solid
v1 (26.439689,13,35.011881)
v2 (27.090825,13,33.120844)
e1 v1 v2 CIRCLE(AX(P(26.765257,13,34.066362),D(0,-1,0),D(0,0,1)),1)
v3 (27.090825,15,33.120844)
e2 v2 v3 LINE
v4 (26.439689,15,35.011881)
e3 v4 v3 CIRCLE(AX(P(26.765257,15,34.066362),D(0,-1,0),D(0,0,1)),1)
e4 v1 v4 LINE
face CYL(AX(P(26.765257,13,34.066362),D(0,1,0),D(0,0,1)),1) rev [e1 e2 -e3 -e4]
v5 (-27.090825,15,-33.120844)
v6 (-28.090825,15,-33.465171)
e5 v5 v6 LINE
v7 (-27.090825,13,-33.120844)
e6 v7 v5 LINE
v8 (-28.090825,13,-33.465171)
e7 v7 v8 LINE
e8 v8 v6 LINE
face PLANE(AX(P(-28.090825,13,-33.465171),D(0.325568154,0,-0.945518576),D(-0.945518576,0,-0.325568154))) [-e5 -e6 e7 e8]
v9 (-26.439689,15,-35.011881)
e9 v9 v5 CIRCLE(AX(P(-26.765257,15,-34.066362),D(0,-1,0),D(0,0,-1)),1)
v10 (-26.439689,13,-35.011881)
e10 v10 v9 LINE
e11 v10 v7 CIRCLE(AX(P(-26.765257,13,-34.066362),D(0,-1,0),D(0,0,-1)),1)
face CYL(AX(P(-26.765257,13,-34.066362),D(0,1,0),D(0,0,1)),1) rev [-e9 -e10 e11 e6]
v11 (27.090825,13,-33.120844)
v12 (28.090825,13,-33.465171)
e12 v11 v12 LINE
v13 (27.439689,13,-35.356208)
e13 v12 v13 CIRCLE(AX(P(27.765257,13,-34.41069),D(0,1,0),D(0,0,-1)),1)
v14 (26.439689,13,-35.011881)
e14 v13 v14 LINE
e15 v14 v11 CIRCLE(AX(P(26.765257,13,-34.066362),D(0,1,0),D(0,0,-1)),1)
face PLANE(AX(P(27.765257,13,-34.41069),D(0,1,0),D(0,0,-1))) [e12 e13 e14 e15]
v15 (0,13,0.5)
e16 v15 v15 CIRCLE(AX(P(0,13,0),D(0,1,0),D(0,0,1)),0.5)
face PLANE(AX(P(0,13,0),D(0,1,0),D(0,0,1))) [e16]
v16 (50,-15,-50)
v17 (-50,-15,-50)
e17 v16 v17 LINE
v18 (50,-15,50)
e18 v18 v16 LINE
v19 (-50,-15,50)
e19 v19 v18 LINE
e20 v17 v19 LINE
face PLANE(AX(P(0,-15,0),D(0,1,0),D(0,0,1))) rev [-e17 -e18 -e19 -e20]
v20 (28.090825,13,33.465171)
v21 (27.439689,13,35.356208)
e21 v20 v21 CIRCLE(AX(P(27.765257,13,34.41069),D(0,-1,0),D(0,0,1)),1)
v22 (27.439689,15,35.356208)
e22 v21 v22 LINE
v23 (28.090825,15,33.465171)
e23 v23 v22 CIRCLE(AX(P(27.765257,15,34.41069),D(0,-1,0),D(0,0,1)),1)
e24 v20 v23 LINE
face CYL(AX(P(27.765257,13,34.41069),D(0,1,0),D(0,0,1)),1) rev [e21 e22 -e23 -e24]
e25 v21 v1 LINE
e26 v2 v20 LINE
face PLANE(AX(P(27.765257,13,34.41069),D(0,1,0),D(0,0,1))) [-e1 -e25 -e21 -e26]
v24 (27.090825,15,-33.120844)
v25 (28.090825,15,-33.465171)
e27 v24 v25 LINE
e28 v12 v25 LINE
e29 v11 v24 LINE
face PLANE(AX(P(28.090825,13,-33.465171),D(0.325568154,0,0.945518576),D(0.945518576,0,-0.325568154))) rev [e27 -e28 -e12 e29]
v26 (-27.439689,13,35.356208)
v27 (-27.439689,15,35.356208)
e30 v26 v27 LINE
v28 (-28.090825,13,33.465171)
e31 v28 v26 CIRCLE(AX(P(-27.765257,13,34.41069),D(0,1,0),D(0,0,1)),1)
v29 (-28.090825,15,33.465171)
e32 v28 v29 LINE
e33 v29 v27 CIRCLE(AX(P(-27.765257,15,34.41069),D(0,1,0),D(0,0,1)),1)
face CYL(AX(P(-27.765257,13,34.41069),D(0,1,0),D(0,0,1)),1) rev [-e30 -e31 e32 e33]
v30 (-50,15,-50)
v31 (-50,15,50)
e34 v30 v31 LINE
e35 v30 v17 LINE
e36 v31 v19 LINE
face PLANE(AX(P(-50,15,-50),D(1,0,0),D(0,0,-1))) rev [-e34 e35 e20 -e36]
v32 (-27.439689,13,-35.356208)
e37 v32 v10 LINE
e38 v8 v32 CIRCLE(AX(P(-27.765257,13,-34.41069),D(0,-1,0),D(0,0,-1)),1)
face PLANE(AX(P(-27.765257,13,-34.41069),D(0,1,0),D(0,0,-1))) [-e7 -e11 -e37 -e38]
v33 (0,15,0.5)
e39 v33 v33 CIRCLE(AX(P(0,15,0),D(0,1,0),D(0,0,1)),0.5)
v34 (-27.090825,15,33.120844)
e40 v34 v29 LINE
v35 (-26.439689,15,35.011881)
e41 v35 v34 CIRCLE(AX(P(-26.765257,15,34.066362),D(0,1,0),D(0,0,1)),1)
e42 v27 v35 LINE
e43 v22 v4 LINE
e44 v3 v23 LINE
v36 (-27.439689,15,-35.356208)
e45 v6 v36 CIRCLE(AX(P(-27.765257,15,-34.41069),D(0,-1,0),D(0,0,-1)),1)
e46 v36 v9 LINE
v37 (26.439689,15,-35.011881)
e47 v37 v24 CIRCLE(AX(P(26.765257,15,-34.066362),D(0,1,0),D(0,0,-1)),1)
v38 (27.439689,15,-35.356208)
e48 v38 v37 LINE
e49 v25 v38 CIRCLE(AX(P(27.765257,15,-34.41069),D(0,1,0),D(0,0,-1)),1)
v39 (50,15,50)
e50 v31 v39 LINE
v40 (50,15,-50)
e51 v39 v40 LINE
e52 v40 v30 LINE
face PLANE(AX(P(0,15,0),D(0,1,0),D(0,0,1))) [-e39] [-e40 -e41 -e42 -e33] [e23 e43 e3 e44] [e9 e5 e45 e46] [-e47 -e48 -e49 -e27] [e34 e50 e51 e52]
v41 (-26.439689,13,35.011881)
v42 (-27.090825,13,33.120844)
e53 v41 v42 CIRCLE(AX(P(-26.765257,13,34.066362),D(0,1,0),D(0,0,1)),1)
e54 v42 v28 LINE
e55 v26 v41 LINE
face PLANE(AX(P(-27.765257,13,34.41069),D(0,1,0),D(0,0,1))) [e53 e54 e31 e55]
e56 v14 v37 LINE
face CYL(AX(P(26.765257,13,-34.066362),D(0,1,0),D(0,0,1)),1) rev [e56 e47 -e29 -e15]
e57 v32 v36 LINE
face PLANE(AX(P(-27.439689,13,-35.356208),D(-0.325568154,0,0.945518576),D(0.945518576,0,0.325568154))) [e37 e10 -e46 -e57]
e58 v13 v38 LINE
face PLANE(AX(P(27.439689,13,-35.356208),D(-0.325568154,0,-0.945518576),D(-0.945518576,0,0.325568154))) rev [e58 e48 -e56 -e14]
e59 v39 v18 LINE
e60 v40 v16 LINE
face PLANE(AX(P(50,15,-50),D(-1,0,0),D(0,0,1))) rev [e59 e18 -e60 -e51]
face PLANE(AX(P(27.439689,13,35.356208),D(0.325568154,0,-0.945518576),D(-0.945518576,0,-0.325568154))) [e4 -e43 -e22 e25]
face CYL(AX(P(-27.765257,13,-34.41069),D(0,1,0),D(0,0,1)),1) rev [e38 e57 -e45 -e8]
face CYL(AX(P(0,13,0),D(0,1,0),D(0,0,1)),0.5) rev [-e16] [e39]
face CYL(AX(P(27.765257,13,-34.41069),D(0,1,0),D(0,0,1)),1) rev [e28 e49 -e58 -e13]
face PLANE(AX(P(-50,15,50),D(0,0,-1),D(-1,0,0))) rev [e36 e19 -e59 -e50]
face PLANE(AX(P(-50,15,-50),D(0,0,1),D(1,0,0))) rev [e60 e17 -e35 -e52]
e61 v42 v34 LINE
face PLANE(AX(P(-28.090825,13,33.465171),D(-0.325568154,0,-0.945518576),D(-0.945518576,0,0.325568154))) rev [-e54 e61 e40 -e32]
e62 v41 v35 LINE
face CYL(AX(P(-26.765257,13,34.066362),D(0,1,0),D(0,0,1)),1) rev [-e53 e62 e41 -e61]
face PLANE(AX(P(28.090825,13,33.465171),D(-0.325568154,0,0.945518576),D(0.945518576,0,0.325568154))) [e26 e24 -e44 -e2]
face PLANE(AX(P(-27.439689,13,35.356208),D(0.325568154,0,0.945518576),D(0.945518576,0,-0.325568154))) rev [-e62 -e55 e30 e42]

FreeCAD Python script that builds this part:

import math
import FreeCAD as App
import Part
import Sketcher
Q = App.Units.Quantity

doc = App.newDocument("Part")
body = doc.addObject("PartDesign::Body", "Body")

# Sketch on XZ plane
sketch1 = body.newObject("Sketcher::SketchObject", "Sketch")
sketch1.AttachmentSupport = (doc.getObject("XZ_Plane"), [""])
sketch1.MapMode = "FlatFace"
sketch1.addGeometry([
    Part.LineSegment(App.Vector(-50, -50, 0), App.Vector(-50, 50, 0)),
    Part.LineSegment(App.Vector(-50, 50, 0), App.Vector(50, 50, 0)),
    Part.LineSegment(App.Vector(50, 50, 0), App.Vector(50, -50, 0)),
    Part.LineSegment(App.Vector(50, -50, 0), App.Vector(-50, -50, 0)),
], False)
sketch1.addConstraint([
    Sketcher.Constraint("Coincident", 0, 2, 1, 1),
    Sketcher.Constraint("Coincident", 1, 2, 2, 1),
    Sketcher.Constraint("Coincident", 2, 2, 3, 1),
    Sketcher.Constraint("Coincident", 3, 2, 0, 1),
    Sketcher.Constraint("Vertical", 0),
    Sketcher.Constraint("Horizontal", 1),
    Sketcher.Constraint("Vertical", 2),
    Sketcher.Constraint("Horizontal", 3),
    Sketcher.Constraint("Symmetric", 0, 2, 2, 2, -1, 1),
    Sketcher.Constraint("Equal", 3, 0),
    Sketcher.Constraint("DistanceX", 1, 1, 1, 2, Q("100 mm")),
])
pad1 = body.newObject("PartDesign::Pad", "Pad")
pad1.Profile = sketch1
pad1.Length = 30
pad1.Midplane = True

# Sketch on XZ plane
sketch2 = body.newObject("Sketcher::SketchObject", "Sketch001")
sketch2.AttachmentSupport = (doc.getObject("XZ_Plane"), [""])
sketch2.MapMode = "FlatFace"
sketch2.AttachmentOffset = App.Placement(App.Vector(0, 0, -15), App.Rotation())
sketch2.addGeometry([
    Part.Circle(App.Vector(0, 0, 0), App.Vector(0, 0, 1), 0.5),  # 0
    Part.LineSegment(App.Vector(-27.090825, 33.120844, 0), App.Vector(-28.090825, 33.465171, 0)),  # 1
    Part.ArcOfCircle(Part.Circle(App.Vector(-27.765257, 34.41069, 0), App.Vector(0, 0, 1), 1), math.radians(71), math.radians(251)),  # 2
    Part.LineSegment(App.Vector(-27.439689, 35.356208, 0), App.Vector(-26.439689, 35.011881, 0)),  # 3
    Part.ArcOfCircle(Part.Circle(App.Vector(-26.765257, 34.066362, 0), App.Vector(0, 0, 1), 1), math.radians(-109), math.radians(71)),  # 4
], False)
sketch2.addConstraint([
    Sketcher.Constraint("Tangent", 1, 2, 2, 2),
    Sketcher.Constraint("Tangent", 2, 1, 3, 1),
    Sketcher.Constraint("Tangent", 3, 2, 4, 2),
    Sketcher.Constraint("Tangent", 4, 1, 1, 1),
    Sketcher.Constraint("Coincident", 0, 3, -1, 1),
    Sketcher.Constraint("Equal", 2, 4),
    Sketcher.Constraint("Diameter", 0, Q("1 mm")),
    Sketcher.Constraint("Radius", 2, Q("1 mm")),
    Sketcher.Constraint("Angle", 1, Q("161 deg")),
    Sketcher.Constraint("DistanceX", 2, 3, 4, 3, Q("1 mm")),
    Sketcher.Constraint("DistanceY", -1, 1, 2, 3, Q("34.41069 mm")),
    Sketcher.Constraint("DistanceX", 2, 1, -1, 1, Q("27.439689 mm")),
])
pocket1 = body.newObject("PartDesign::Pocket", "Pocket")
pocket1.Profile = sketch2
pocket1.Length = 2
pocket1.Reversed = True
doc.recompute()

mirrored = body.newObject("PartDesign::Mirrored", "Mirrored")
mirrored.Originals = [pocket1]
mirrored.MirrorPlane = (doc.getObject("XY_Plane"), [""])
body.Tip = mirrored
doc.recompute()

mirrored2 = body.newObject("PartDesign::Mirrored", "Mirrored001")
mirrored2.Originals = [pocket1]
mirrored2.MirrorPlane = (doc.getObject("YZ_Plane"), [""])
body.Tip = mirrored2

# Sketch on XZ plane
sketch3 = body.newObject("Sketcher::SketchObject", "Sketch002")
sketch3.AttachmentSupport = (doc.getObject("XZ_Plane"), [""])
sketch3.MapMode = "FlatFace"
sketch3.AttachmentOffset = App.Placement(App.Vector(0, 0, -15), App.Rotation())
sketch3.addGeometry([
    Part.Circle(App.Vector(0, 0, 0), App.Vector(0, 0, 1), 0.5),  # 0
    Part.LineSegment(App.Vector(27.090825, -33.120844, 0), App.Vector(28.090825, -33.465171, 0)),  # 1
    Part.ArcOfCircle(Part.Circle(App.Vector(27.765257, -34.41069, 0), App.Vector(0, 0, 1), 1), math.radians(-109), math.radians(71)),  # 2
    Part.LineSegment(App.Vector(27.439689, -35.356208, 0), App.Vector(26.439689, -35.011881, 0)),  # 3
    Part.ArcOfCircle(Part.Circle(App.Vector(26.765257, -34.066362, 0), App.Vector(0, 0, 1), 1), math.radians(71), math.radians(251)),  # 4
], False)
sketch3.addConstraint([
    Sketcher.Constraint("Tangent", 1, 2, 2, 2),
    Sketcher.Constraint("Tangent", 2, 1, 3, 1),
    Sketcher.Constraint("Tangent", 3, 2, 4, 2),
    Sketcher.Constraint("Tangent", 4, 1, 1, 1),
    Sketcher.Constraint("Coincident", 0, 3, -1, 1),
    Sketcher.Constraint("Equal", 2, 4),
    Sketcher.Constraint("Diameter", 0, Q("1 mm")),
    Sketcher.Constraint("Radius", 2, Q("1 mm")),
    Sketcher.Constraint("Angle", 1, Q("-19 deg")),
    Sketcher.Constraint("DistanceX", 4, 3, 2, 3, Q("1 mm")),
    Sketcher.Constraint("DistanceY", 2, 3, -1, 1, Q("34.41069 mm")),
    Sketcher.Constraint("DistanceX", -1, 1, 2, 1, Q("27.439689 mm")),
])
pocket2 = body.newObject("PartDesign::Pocket", "Pocket001")
pocket2.Profile = sketch3
pocket2.Length = 2
pocket2.Reversed = True

doc.recompute()
